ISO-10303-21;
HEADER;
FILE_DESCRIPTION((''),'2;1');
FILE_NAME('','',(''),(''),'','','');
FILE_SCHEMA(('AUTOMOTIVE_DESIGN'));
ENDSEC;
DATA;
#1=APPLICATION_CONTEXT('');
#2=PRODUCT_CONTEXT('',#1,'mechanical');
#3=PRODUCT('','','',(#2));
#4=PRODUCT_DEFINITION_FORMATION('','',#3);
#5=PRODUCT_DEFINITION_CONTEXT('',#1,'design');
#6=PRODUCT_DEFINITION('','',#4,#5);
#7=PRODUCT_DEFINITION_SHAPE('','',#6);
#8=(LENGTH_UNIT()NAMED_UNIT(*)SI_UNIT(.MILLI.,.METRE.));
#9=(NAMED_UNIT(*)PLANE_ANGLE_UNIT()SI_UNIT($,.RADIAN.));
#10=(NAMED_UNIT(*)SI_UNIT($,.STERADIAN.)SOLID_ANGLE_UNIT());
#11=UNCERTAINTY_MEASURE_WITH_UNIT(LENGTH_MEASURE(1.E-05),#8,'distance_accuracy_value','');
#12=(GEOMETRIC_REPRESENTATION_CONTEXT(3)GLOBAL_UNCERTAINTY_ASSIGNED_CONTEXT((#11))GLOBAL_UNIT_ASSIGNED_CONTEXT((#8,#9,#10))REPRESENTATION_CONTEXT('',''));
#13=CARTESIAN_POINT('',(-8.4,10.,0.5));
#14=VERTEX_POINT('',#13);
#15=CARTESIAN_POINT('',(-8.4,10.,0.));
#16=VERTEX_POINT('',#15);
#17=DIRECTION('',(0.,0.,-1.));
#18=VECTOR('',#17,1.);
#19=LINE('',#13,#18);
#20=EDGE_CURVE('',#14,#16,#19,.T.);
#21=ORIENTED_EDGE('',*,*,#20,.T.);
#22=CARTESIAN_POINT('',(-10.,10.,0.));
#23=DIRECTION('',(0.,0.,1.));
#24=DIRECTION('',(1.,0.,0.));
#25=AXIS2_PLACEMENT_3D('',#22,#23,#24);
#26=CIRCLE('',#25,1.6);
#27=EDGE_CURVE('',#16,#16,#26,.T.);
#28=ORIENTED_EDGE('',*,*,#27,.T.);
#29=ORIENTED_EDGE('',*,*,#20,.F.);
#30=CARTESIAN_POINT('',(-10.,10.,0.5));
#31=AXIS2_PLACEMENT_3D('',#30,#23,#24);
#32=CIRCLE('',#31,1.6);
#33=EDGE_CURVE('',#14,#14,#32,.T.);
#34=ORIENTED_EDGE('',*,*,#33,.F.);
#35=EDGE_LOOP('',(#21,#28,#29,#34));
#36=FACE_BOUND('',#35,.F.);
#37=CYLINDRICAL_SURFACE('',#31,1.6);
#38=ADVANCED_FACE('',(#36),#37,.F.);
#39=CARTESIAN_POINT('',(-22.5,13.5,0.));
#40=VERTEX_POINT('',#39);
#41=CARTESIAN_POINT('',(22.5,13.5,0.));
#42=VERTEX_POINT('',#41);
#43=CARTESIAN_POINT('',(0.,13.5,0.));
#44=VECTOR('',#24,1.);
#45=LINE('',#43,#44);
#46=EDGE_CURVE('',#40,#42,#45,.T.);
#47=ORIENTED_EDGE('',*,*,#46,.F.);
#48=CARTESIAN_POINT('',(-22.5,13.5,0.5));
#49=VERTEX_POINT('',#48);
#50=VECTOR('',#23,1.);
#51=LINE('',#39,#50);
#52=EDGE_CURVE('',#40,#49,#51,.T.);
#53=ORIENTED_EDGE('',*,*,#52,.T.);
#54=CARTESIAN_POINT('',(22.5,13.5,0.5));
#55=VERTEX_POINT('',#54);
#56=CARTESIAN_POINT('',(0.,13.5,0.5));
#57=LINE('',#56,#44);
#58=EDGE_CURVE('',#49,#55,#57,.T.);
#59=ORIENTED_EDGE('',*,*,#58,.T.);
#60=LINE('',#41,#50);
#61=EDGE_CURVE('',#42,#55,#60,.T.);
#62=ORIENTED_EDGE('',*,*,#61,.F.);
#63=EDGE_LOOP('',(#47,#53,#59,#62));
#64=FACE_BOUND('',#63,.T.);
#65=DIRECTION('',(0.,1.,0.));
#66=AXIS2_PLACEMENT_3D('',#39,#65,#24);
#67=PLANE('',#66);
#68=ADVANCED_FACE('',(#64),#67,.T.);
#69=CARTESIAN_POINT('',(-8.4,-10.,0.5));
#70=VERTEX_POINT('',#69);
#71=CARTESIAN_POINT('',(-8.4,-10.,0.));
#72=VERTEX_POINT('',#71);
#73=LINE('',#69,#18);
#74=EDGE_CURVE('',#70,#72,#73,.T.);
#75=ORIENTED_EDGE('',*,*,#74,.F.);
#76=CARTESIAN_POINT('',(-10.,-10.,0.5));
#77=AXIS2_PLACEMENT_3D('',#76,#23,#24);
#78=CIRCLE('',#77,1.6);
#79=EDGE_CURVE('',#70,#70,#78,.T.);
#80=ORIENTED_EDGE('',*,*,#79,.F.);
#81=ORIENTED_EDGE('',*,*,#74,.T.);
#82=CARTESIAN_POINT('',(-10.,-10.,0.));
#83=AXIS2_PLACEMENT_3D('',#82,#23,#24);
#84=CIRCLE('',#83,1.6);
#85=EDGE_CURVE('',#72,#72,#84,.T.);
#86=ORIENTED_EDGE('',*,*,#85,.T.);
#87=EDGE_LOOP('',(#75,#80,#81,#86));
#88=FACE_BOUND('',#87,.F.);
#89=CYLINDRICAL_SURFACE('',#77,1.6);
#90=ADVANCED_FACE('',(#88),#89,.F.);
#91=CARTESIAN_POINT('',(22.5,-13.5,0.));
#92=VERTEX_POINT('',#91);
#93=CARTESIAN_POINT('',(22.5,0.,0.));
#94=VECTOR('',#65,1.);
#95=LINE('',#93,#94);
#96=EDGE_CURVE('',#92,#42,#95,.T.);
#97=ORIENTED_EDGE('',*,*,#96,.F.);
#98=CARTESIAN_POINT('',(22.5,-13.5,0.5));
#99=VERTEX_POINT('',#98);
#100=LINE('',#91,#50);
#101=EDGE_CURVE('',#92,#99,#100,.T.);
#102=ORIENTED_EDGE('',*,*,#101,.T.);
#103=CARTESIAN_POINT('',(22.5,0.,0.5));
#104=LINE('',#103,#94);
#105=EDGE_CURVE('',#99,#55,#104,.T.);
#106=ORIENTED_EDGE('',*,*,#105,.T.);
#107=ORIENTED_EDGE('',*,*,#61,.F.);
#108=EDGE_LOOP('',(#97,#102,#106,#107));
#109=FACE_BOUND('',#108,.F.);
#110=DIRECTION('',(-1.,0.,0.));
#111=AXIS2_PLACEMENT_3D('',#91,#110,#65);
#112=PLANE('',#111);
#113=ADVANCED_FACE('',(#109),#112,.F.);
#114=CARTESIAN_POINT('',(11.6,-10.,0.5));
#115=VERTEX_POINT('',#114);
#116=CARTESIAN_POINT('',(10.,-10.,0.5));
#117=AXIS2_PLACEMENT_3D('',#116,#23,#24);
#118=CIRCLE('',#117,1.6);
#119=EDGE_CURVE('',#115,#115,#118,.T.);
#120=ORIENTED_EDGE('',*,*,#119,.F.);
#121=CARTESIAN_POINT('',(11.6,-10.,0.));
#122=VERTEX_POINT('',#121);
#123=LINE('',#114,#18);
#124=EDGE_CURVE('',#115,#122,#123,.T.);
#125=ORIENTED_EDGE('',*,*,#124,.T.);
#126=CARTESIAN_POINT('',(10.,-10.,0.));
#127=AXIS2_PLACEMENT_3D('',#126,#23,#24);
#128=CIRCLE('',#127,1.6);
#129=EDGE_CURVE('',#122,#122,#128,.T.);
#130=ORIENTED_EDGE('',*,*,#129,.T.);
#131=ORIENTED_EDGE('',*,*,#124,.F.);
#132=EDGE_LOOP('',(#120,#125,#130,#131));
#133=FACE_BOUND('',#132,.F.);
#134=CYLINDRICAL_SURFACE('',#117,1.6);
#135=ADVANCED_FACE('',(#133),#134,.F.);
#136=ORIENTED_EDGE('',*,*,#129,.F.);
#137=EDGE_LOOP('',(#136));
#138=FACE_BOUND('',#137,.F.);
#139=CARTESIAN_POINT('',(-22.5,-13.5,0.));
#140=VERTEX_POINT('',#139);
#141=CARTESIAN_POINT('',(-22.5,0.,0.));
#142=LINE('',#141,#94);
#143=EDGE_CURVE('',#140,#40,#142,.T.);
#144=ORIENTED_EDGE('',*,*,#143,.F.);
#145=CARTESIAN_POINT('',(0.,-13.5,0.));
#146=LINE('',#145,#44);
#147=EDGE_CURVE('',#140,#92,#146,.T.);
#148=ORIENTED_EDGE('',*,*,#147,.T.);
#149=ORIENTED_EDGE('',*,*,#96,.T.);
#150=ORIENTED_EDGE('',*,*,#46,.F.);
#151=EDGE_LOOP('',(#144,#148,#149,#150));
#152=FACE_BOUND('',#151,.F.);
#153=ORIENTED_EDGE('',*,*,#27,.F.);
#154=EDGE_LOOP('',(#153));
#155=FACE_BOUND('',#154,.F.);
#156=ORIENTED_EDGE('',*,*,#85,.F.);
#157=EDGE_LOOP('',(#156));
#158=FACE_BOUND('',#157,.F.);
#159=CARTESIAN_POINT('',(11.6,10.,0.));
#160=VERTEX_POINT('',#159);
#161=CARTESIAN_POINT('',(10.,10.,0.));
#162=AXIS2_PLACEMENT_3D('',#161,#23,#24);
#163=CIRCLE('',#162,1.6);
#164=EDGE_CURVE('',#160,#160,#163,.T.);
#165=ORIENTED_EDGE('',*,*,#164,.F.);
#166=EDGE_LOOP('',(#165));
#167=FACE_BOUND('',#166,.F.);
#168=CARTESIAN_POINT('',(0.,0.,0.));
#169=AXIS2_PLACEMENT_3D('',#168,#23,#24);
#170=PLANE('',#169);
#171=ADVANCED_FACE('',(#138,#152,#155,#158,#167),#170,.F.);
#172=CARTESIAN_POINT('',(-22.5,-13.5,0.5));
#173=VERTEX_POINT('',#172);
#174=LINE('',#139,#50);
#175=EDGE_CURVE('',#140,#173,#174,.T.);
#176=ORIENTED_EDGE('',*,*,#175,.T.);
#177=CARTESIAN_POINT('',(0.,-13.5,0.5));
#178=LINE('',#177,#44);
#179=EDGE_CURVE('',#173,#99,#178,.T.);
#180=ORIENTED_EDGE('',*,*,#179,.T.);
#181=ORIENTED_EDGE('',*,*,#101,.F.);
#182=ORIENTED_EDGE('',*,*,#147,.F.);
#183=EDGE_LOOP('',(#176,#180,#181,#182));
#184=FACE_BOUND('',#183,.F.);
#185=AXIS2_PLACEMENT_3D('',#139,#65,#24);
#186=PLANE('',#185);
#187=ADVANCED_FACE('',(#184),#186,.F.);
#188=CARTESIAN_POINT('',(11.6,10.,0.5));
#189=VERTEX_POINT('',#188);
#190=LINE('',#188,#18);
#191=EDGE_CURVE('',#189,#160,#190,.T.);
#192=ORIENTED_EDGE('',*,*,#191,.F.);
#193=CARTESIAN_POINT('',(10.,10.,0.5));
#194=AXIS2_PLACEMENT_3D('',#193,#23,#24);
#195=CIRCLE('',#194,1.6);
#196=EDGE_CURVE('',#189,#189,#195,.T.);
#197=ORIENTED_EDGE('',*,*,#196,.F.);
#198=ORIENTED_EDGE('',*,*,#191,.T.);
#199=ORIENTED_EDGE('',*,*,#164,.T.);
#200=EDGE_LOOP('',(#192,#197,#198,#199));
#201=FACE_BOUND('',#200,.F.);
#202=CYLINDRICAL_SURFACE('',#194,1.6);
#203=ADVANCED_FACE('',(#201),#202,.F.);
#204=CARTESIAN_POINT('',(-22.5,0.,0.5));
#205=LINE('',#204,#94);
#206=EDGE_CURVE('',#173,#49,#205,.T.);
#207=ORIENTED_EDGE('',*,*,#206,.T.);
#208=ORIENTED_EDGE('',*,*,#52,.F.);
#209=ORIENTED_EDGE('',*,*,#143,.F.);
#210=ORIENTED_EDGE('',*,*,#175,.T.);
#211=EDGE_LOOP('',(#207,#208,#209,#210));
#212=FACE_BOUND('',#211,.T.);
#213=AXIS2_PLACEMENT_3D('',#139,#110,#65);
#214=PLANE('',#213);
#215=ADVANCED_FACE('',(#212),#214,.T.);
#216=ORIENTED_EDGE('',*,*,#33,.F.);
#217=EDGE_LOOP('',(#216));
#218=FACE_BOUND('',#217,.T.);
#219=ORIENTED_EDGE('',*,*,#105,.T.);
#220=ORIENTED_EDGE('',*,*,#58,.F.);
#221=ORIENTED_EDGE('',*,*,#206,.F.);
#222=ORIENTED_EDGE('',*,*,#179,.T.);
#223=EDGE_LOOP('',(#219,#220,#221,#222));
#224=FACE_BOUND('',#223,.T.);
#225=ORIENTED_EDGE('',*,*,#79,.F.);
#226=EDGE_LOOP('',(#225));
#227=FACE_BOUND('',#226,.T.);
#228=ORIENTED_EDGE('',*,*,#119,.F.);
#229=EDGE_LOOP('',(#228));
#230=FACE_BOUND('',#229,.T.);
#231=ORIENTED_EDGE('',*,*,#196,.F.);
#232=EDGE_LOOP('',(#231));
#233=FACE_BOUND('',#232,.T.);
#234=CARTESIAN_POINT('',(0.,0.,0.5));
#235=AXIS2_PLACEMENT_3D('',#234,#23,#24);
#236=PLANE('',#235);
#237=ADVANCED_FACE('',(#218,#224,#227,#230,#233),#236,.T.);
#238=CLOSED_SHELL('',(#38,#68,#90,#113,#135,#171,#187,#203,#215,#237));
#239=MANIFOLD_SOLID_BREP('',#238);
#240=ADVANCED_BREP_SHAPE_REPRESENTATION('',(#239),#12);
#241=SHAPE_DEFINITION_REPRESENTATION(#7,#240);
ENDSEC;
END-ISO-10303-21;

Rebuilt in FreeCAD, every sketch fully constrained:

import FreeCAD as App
import Part
import Sketcher

V = App.Vector

doc = App.newDocument("Part")
body = doc.addObject("PartDesign::Body", "Body")

# Sketch on XY plane
sketch1 = doc.addObject("Sketcher::SketchObject", "Sketch")
body.addObject(sketch1)
sketch1.AttachmentSupport = (doc.XY_Plane, [""])
sketch1.MapMode = "FlatFace"
sketch1.addGeometry(Part.LineSegment(V(-22, 14, 0), V(-22, -14, 0)), False)
sketch1.addGeometry(Part.LineSegment(V(-22, -14, 0), V(22, -14, 0)), False)
sketch1.addGeometry(Part.LineSegment(V(22, -14, 0), V(22, 14, 0)), False)
sketch1.addGeometry(Part.LineSegment(V(22, 14, 0), V(-22, 14, 0)), False)
sketch1.addConstraint(Sketcher.Constraint("Coincident", 0, 2, 1, 1))
sketch1.addConstraint(Sketcher.Constraint("Coincident", 1, 2, 2, 1))
sketch1.addConstraint(Sketcher.Constraint("Coincident", 2, 2, 3, 1))
sketch1.addConstraint(Sketcher.Constraint("Coincident", 3, 2, 0, 1))
sketch1.addConstraint(Sketcher.Constraint("Vertical", 0))
sketch1.addConstraint(Sketcher.Constraint("Horizontal", 1))
sketch1.addConstraint(Sketcher.Constraint("Vertical", 2))
sketch1.addConstraint(Sketcher.Constraint("Horizontal", 3))
sketch1.addConstraint(Sketcher.Constraint("Symmetric", 0, 2, 2, 2, -1, 1))
sketch1.addConstraint(Sketcher.Constraint("DistanceX", 1, 1, 1, 2, 45.0))
sketch1.addConstraint(Sketcher.Constraint("DistanceY", 0, 2, 0, 1, 27.0))
pad1 = doc.addObject("PartDesign::Pad", "Pad")
body.addObject(pad1)
pad1.Profile = sketch1
pad1.Length = 0.5

# Sketch on XY plane
sketch2 = doc.addObject("Sketcher::SketchObject", "Sketch001")
body.addObject(sketch2)
sketch2.AttachmentSupport = (doc.XY_Plane, [""])
sketch2.MapMode = "FlatFace"
sketch2.AttachmentOffset = App.Placement(V(0, 0, 0.5), App.Rotation())
sketch2.addGeometry(Part.Circle(V(-10, 10, 0), V(0, 0, 1), 1.6), False)
sketch2.addGeometry(Part.Circle(V(10, 10, 0), V(0, 0, 1), 1.6), False)
sketch2.addGeometry(Part.Circle(V(-10, -10, 0), V(0, 0, 1), 1.6), False)
sketch2.addGeometry(Part.Circle(V(10, -10, 0), V(0, 0, 1), 1.6), False)
sketch2.addConstraint(Sketcher.Constraint("Equal", 0, 1))
sketch2.addConstraint(Sketcher.Constraint("Equal", 1, 2))
sketch2.addConstraint(Sketcher.Constraint("Equal", 2, 3))
sketch2.addConstraint(Sketcher.Constraint("Symmetric", 1, 3, 2, 3, -1, 1))
sketch2.addConstraint(Sketcher.Constraint("Symmetric", 0, 3, 3, 3, -1, 1))
sketch2.addConstraint(Sketcher.Constraint("Symmetric", 0, 3, 1, 3, -2))
sketch2.addConstraint(Sketcher.Constraint("Diameter", 0, 3.2))
sketch2.addConstraint(Sketcher.Constraint("DistanceX", 0, 3, -1, 1, 10.0))
sketch2.addConstraint(Sketcher.Constraint("DistanceY", -1, 1, 0, 3, 10.0))
pocket1 = doc.addObject("PartDesign::Pocket", "Pocket")
body.addObject(pocket1)
pocket1.Profile = sketch2
pocket1.Length = 5

doc.recompute()
